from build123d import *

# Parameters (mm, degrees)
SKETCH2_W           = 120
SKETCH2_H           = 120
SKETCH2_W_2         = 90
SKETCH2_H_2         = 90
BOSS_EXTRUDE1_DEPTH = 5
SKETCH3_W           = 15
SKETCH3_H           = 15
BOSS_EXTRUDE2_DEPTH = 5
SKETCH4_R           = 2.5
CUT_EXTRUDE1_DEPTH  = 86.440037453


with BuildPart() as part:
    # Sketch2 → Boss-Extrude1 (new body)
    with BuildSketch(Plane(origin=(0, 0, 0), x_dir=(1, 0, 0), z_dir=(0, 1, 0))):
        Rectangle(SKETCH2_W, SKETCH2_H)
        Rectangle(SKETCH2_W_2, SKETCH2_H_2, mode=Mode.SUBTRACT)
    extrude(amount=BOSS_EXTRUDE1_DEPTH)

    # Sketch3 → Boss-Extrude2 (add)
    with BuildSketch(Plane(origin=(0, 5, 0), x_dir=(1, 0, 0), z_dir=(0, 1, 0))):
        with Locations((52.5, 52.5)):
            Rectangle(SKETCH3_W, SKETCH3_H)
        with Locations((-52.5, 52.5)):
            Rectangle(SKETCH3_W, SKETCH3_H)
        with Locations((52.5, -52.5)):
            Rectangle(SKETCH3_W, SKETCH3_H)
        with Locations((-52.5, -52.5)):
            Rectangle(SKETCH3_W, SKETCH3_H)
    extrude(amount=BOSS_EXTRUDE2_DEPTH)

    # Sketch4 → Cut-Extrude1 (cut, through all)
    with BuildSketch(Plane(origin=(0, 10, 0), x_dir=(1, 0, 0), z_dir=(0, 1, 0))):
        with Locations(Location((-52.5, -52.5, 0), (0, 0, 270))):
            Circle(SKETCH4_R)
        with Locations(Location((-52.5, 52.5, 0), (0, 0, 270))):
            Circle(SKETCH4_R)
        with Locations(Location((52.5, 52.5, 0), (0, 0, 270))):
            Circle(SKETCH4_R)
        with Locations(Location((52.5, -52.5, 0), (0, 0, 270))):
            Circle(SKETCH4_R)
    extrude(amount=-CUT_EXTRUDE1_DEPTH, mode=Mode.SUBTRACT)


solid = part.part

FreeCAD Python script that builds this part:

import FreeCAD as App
import Part
import Sketcher

V = App.Vector


def add_polygon(sketch, points):
    """Adds a closed chain of lines whose ends are joined by coincident constraints."""
    first, n = sketch.GeometryCount, len(points)
    for a, b in zip(points, points[1:] + points[:1]):
        sketch.addGeometry(Part.LineSegment(App.Vector(*a, 0), App.Vector(*b, 0)), False)
    for i in range(n):
        sketch.addConstraint(Sketcher.Constraint("Coincident", first + i, 2, first + (i + 1) % n, 1))

doc = App.newDocument("Part")
body = doc.addObject("PartDesign::Body", "Body")

# Sketch on XZ plane
sketch1 = body.newObject("Sketcher::SketchObject", "Sketch")
sketch1.AttachmentSupport = (doc.getObject("XZ_Plane"), [""])
sketch1.MapMode = "FlatFace"
add_polygon(sketch1, [(-60, -60), (-60, 60), (60, 60), (60, -60)])  # lines 0-3
add_polygon(sketch1, [(45, 45), (-45, 45), (-45, -45), (45, -45)])  # lines 4-7
sketch1.addConstraint(Sketcher.Constraint("Vertical", 0))
sketch1.addConstraint(Sketcher.Constraint("Horizontal", 1))
sketch1.addConstraint(Sketcher.Constraint("Vertical", 2))
sketch1.addConstraint(Sketcher.Constraint("Horizontal", 3))
sketch1.addConstraint(Sketcher.Constraint("Horizontal", 4))
sketch1.addConstraint(Sketcher.Constraint("Vertical", 5))
sketch1.addConstraint(Sketcher.Constraint("Horizontal", 6))
sketch1.addConstraint(Sketcher.Constraint("Vertical", 7))
sketch1.addConstraint(Sketcher.Constraint("Symmetric", 0, 2, 2, 2, -1, 1))
sketch1.addConstraint(Sketcher.Constraint("Symmetric", 4, 2, 6, 2, -1, 1))
sketch1.addConstraint(Sketcher.Constraint("Equal", 3, 0))
sketch1.addConstraint(Sketcher.Constraint("Equal", 6, 5))
sketch1.addConstraint(Sketcher.Constraint("DistanceX", 1, 1, 1, 2, 120.0))
sketch1.addConstraint(Sketcher.Constraint("DistanceX", 4, 2, 4, 1, 90.0))
pad1 = body.newObject("PartDesign::Pad", "Pad")
pad1.Profile = sketch1
pad1.Length = 5
pad1.Reversed = True

# Sketch on XZ plane
sketch2 = body.newObject("Sketcher::SketchObject", "Sketch001")
sketch2.AttachmentSupport = (doc.getObject("XZ_Plane"), [""])
sketch2.MapMode = "FlatFace"
sketch2.AttachmentOffset = App.Placement(V(0, 0, -5), App.Rotation())
add_polygon(sketch2, [(45, -60), (45, -45), (60, -45), (60, -60)])  # lines 0-3
add_polygon(sketch2, [(-60, -60), (-60, -45), (-45, -45), (-45, -60)])  # lines 4-7
add_polygon(sketch2, [(45, 45), (45, 60), (60, 60), (60, 45)])  # lines 8-11
add_polygon(sketch2, [(-60, 45), (-60, 60), (-45, 60), (-45, 45)])  # lines 12-15
sketch2.addConstraint(Sketcher.Constraint("Vertical", 0))
sketch2.addConstraint(Sketcher.Constraint("Horizontal", 1))
sketch2.addConstraint(Sketcher.Constraint("Vertical", 2))
sketch2.addConstraint(Sketcher.Constraint("Horizontal", 3))
sketch2.addConstraint(Sketcher.Constraint("Vertical", 4))
sketch2.addConstraint(Sketcher.Constraint("Horizontal", 5))
sketch2.addConstraint(Sketcher.Constraint("Vertical", 6))
sketch2.addConstraint(Sketcher.Constraint("Horizontal", 7))
sketch2.addConstraint(Sketcher.Constraint("Vertical", 8))
sketch2.addConstraint(Sketcher.Constraint("Horizontal", 9))
sketch2.addConstraint(Sketcher.Constraint("Vertical", 10))
sketch2.addConstraint(Sketcher.Constraint("Horizontal", 11))
sketch2.addConstraint(Sketcher.Constraint("Vertical", 12))
sketch2.addConstraint(Sketcher.Constraint("Horizontal", 13))
sketch2.addConstraint(Sketcher.Constraint("Vertical", 14))
sketch2.addConstraint(Sketcher.Constraint("Horizontal", 15))
sketch2.addConstraint(Sketcher.Constraint("Symmetric", 6, 2, 8, 2, -1, 1))
sketch2.addConstraint(Sketcher.Constraint("Symmetric", 4, 2, 10, 2, -1, 1))
sketch2.addConstraint(Sketcher.Constraint("Symmetric", 2, 2, 12, 2, -1, 1))
sketch2.addConstraint(Sketcher.Constraint("Symmetric", 0, 2, 14, 2, -1, 1))
sketch2.addConstraint(Sketcher.Constraint("Symmetric", 1, 2, 4, 2, -2))
sketch2.addConstraint(Sketcher.Constraint("Symmetric", 3, 2, 6, 2, -2))
sketch2.addConstraint(Sketcher.Constraint("Equal", 15, 0))
sketch2.addConstraint(Sketcher.Constraint("DistanceX", 1, 1, 1, 2, 15.0))
sketch2.addConstraint(Sketcher.Constraint("DistanceX", -1, 1, 0, 2, 45.0))
sketch2.addConstraint(Sketcher.Constraint("DistanceY", 0, 2, -1, 1, 45.0))
pad2 = body.newObject("PartDesign::Pad", "Pad001")
pad2.Profile = sketch2
pad2.Length = 5
pad2.Reversed = True

# Sketch on XZ plane
sketch3 = body.newObject("Sketcher::SketchObject", "Sketch002")
sketch3.AttachmentSupport = (doc.getObject("XZ_Plane"), [""])
sketch3.MapMode = "FlatFace"
sketch3.AttachmentOffset = App.Placement(V(0, 0, -10), App.Rotation())
sketch3.addGeometry(Part.Circle(V(-52.5, 52.5, 0), V(0, 0, 1), 2.5), False)
sketch3.addGeometry(Part.Circle(V(-52.5, -52.5, 0), V(0, 0, 1), 2.5), False)
sketch3.addGeometry(Part.Circle(V(52.5, -52.5, 0), V(0, 0, 1), 2.5), False)
sketch3.addGeometry(Part.Circle(V(52.5, 52.5, 0), V(0, 0, 1), 2.5), False)
sketch3.addConstraint(Sketcher.Constraint("Equal", 0, 1))
sketch3.addConstraint(Sketcher.Constraint("Equal", 1, 2))
sketch3.addConstraint(Sketcher.Constraint("Equal", 2, 3))
sketch3.addConstraint(Sketcher.Constraint("Symmetric", 0, 3, 2, 3, -1, 1))
sketch3.addConstraint(Sketcher.Constraint("Symmetric", 1, 3, 3, 3, -1, 1))
sketch3.addConstraint(Sketcher.Constraint("Symmetric", 1, 3, 2, 3, -2))
sketch3.addConstraint(Sketcher.Constraint("Diameter", 0, 5.0))
sketch3.addConstraint(Sketcher.Constraint("DistanceY", 1, 3, 0, 3, 105.0))
sketch3.addConstraint(Sketcher.Constraint("DistanceX", 1, 3, 2, 3, 105.0))
pocket1 = body.newObject("PartDesign::Pocket", "Pocket")
pocket1.Profile = sketch3
pocket1.Type = "ThroughAll"
pocket1.Reversed = True

doc.recompute()
